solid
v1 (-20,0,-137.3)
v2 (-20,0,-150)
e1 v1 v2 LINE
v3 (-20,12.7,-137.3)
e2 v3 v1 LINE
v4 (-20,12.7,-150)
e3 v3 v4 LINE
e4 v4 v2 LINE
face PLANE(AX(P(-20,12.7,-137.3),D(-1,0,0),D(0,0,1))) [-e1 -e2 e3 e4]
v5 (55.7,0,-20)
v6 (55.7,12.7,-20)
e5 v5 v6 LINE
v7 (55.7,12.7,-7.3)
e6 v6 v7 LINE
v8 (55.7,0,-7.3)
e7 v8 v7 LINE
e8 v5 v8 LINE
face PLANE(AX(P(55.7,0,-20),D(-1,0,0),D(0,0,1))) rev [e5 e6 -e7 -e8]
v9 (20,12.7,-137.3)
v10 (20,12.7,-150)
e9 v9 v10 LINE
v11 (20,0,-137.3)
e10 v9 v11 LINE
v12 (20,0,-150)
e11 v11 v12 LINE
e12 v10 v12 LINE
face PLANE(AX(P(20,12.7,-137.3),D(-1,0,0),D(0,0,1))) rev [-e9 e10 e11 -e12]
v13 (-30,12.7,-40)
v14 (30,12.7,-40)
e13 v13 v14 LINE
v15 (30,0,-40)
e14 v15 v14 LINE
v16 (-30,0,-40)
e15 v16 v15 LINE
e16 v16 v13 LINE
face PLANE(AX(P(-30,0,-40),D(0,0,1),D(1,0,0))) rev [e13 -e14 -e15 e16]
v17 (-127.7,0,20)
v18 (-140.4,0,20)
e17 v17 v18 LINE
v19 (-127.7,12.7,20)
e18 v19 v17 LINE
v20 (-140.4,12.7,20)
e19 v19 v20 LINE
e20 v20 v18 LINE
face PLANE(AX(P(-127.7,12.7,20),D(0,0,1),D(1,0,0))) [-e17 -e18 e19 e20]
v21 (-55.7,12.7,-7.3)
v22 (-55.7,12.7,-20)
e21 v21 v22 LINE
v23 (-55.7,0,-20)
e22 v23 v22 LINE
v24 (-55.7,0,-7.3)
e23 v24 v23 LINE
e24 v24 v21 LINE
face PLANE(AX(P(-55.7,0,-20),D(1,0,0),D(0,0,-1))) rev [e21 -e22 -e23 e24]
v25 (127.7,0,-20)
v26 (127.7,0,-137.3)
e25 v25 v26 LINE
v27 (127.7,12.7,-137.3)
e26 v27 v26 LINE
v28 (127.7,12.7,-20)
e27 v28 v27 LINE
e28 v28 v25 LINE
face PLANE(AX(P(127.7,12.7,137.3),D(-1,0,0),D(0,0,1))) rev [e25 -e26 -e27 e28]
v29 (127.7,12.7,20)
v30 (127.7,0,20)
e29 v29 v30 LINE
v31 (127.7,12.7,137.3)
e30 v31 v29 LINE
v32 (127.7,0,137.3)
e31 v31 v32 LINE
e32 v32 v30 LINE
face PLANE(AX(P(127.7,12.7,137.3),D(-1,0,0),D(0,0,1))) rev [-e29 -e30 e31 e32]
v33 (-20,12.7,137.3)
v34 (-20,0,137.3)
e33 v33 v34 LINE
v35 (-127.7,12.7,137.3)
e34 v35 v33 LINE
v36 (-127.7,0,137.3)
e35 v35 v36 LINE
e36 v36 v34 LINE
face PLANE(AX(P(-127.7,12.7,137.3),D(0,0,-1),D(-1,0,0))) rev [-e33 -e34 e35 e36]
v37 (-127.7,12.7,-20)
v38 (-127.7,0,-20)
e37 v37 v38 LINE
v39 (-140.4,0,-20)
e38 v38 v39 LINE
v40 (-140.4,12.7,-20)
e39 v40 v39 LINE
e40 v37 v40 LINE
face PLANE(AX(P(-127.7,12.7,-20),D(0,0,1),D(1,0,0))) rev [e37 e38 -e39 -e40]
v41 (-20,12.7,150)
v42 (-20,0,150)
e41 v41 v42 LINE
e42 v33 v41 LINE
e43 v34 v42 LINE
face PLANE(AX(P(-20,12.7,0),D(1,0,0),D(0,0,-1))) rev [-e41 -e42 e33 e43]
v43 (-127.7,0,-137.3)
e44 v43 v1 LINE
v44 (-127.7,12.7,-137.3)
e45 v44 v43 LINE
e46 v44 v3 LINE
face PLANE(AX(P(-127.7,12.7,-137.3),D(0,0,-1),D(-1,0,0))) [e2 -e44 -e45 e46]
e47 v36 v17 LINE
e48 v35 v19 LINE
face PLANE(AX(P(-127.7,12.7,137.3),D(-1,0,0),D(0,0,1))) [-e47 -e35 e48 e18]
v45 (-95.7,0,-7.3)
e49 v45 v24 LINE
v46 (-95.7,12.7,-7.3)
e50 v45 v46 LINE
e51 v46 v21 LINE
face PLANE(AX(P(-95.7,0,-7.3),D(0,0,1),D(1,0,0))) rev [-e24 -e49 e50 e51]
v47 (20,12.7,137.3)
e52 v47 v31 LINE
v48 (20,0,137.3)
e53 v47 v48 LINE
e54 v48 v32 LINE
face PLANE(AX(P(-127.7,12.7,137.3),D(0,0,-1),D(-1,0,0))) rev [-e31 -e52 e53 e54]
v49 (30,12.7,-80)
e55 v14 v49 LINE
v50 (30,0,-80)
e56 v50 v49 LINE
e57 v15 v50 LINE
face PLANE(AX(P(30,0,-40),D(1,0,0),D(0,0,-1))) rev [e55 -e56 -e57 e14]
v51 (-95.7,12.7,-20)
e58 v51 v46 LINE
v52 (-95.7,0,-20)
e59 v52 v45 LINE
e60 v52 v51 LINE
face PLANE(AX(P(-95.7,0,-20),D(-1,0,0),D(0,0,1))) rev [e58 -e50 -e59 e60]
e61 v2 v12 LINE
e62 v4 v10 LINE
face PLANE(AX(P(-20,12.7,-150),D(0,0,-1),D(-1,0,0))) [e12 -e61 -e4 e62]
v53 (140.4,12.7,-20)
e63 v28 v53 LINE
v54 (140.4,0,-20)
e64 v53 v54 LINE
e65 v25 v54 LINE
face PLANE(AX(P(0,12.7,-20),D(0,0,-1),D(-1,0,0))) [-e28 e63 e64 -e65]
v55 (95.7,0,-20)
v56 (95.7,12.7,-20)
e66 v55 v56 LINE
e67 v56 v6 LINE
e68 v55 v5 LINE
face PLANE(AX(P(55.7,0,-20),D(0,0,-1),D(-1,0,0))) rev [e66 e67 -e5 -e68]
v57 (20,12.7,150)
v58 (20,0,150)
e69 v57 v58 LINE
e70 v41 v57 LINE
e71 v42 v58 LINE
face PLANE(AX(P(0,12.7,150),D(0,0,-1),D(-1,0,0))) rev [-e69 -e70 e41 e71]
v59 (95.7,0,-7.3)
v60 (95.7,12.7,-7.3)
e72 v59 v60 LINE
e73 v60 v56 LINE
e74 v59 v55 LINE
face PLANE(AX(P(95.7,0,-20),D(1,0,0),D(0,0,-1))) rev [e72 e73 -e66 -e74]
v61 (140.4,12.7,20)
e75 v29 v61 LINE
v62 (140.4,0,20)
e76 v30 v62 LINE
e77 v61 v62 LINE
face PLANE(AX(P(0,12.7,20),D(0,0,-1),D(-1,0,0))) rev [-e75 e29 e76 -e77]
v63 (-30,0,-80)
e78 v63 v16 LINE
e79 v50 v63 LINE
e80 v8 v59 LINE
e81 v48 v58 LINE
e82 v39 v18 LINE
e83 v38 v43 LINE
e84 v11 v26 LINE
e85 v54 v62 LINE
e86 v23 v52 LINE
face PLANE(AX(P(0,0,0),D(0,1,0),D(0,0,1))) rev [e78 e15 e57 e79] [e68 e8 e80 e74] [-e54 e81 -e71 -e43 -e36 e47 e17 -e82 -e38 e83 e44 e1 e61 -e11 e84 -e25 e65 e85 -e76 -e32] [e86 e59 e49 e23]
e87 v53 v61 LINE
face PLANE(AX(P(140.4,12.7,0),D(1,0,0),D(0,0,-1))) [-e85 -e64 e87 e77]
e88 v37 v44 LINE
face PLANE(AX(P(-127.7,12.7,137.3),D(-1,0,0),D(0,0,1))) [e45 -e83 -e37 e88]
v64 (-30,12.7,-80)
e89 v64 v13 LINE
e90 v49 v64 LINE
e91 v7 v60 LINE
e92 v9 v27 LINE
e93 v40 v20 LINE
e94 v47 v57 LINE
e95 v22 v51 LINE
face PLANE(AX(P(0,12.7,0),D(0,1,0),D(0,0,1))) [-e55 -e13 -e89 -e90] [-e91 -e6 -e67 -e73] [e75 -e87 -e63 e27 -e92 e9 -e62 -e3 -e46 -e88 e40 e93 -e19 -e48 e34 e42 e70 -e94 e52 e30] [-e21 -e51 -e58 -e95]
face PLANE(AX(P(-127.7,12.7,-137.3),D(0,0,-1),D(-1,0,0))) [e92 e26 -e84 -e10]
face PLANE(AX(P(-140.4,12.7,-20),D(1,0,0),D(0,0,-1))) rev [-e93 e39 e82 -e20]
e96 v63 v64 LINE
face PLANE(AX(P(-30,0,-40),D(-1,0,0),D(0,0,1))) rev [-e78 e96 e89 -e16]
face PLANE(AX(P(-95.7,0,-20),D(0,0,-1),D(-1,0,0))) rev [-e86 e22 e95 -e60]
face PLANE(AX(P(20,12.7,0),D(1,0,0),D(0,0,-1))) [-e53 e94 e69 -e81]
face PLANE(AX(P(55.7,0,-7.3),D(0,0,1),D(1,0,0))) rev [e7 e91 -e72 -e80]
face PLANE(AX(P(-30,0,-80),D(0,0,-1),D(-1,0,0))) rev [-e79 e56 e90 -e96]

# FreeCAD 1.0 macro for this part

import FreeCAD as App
import Part
import Sketcher
Q = App.Units.Quantity

doc = App.newDocument("Part")
body = doc.addObject("PartDesign::Body", "Body")

sketch1 = body.newObject("Sketcher::SketchObject", "Sketch")
sketch1.AttachmentSupport = (doc.getObject("XZ_Plane"), [""])
sketch1.MapMode = "FlatFace"
sketch1.addGeometry([
    Part.LineSegment(App.Vector(-128, 137, 0), App.Vector(-20, 137, 0)),
    Part.LineSegment(App.Vector(-20, 137, 0), App.Vector(-20, 150, 0)),
    Part.LineSegment(App.Vector(-20, 150, 0), App.Vector(20, 150, 0)),
    Part.LineSegment(App.Vector(20, 150, 0), App.Vector(20, 137, 0)),
    Part.LineSegment(App.Vector(20, 137, 0), App.Vector(128, 137, 0)),
    Part.LineSegment(App.Vector(128, 137, 0), App.Vector(128, 20, 0)),
    Part.LineSegment(App.Vector(128, 20, 0), App.Vector(140, 20, 0)),
    Part.LineSegment(App.Vector(140, 20, 0), App.Vector(140, -20, 0)),
    Part.LineSegment(App.Vector(140, -20, 0), App.Vector(128, -20, 0)),
    Part.LineSegment(App.Vector(128, -20, 0), App.Vector(128, -137, 0)),
    Part.LineSegment(App.Vector(128, -137, 0), App.Vector(20, -137, 0)),
    Part.LineSegment(App.Vector(20, -137, 0), App.Vector(20, -150, 0)),
    Part.LineSegment(App.Vector(20, -150, 0), App.Vector(-20, -150, 0)),
    Part.LineSegment(App.Vector(-20, -150, 0), App.Vector(-20, -137, 0)),
    Part.LineSegment(App.Vector(-20, -137, 0), App.Vector(-128, -137, 0)),
    Part.LineSegment(App.Vector(-128, -137, 0), App.Vector(-128, -20, 0)),
    Part.LineSegment(App.Vector(-128, -20, 0), App.Vector(-140, -20, 0)),
    Part.LineSegment(App.Vector(-140, -20, 0), App.Vector(-140, 20, 0)),
    Part.LineSegment(App.Vector(-140, 20, 0), App.Vector(-128, 20, 0)),
    Part.LineSegment(App.Vector(-128, 20, 0), App.Vector(-128, 137, 0)),
], False)
sketch1.addConstraint([
    Sketcher.Constraint("Coincident", 0, 2, 1, 1),
    Sketcher.Constraint("Coincident", 1, 2, 2, 1),
    Sketcher.Constraint("Coincident", 2, 2, 3, 1),
    Sketcher.Constraint("Coincident", 3, 2, 4, 1),
    Sketcher.Constraint("Coincident", 4, 2, 5, 1),
    Sketcher.Constraint("Coincident", 5, 2, 6, 1),
    Sketcher.Constraint("Coincident", 6, 2, 7, 1),
    Sketcher.Constraint("Coincident", 7, 2, 8, 1),
    Sketcher.Constraint("Coincident", 8, 2, 9, 1),
    Sketcher.Constraint("Coincident", 9, 2, 10, 1),
    Sketcher.Constraint("Coincident", 10, 2, 11, 1),
    Sketcher.Constraint("Coincident", 11, 2, 12, 1),
    Sketcher.Constraint("Coincident", 12, 2, 13, 1),
    Sketcher.Constraint("Coincident", 13, 2, 14, 1),
    Sketcher.Constraint("Coincident", 14, 2, 15, 1),
    Sketcher.Constraint("Coincident", 15, 2, 16, 1),
    Sketcher.Constraint("Coincident", 16, 2, 17, 1),
    Sketcher.Constraint("Coincident", 17, 2, 18, 1),
    Sketcher.Constraint("Coincident", 18, 2, 19, 1),
    Sketcher.Constraint("Coincident", 19, 2, 0, 1),
    Sketcher.Constraint("Horizontal", 0),
    Sketcher.Constraint("Vertical", 1),
    Sketcher.Constraint("Horizontal", 2),
    Sketcher.Constraint("Vertical", 3),
    Sketcher.Constraint("Horizontal", 4),
    Sketcher.Constraint("Vertical", 5),
    Sketcher.Constraint("Horizontal", 6),
    Sketcher.Constraint("Vertical", 7),
    Sketcher.Constraint("Horizontal", 8),
    Sketcher.Constraint("Vertical", 9),
    Sketcher.Constraint("Horizontal", 10),
    Sketcher.Constraint("Vertical", 11),
    Sketcher.Constraint("Horizontal", 12),
    Sketcher.Constraint("Vertical", 13),
    Sketcher.Constraint("Horizontal", 14),
    Sketcher.Constraint("Vertical", 15),
    Sketcher.Constraint("Horizontal", 16),
    Sketcher.Constraint("Vertical", 17),
    Sketcher.Constraint("Horizontal", 18),
    Sketcher.Constraint("Vertical", 19),
    Sketcher.Constraint("Symmetric", 0, 2, 10, 2, -1, 1),
    Sketcher.Constraint("Symmetric", 2, 2, 12, 2, -1, 1),
    Sketcher.Constraint("Symmetric", 4, 2, 14, 2, -1, 1),
    Sketcher.Constraint("Symmetric", 6, 2, 16, 2, -1, 1),
    Sketcher.Constraint("Symmetric", 8, 2, 18, 2, -1, 1),
    Sketcher.Constraint("Symmetric", 0, 2, 3, 2, -2),
    Sketcher.Constraint("Symmetric", 8, 2, 15, 2, -2),
    Sketcher.Constraint("Equal", 18, 1),
    Sketcher.Constraint("Equal", 12, 7),
    Sketcher.Constraint("DistanceX", 2, 1, 2, 2, Q("40 mm")),
    Sketcher.Constraint("DistanceX", 0, 1, 0, 2, Q("107.7 mm")),
    Sketcher.Constraint("DistanceX", 6, 1, 6, 2, Q("12.7 mm")),
    Sketcher.Constraint("DistanceY", 5, 2, 5, 1, Q("117.3 mm")),
])
pad1 = body.newObject("PartDesign::Pad", "Pad")
pad1.Profile = sketch1
pad1.Length = 12.7
pad1.Reversed = True

sketch2 = body.newObject("Sketcher::SketchObject", "Sketch001")
sketch2.AttachmentSupport = (doc.getObject("XZ_Plane"), [""])
sketch2.MapMode = "FlatFace"
sketch2.AttachmentOffset = App.Placement(App.Vector(0, 0, -12.7), App.Rotation())
sketch2.addGeometry([
    Part.LineSegment(App.Vector(-96, -20, 0), App.Vector(-96, -7, 0)),
    Part.LineSegment(App.Vector(-96, -7, 0), App.Vector(-56, -7, 0)),
    Part.LineSegment(App.Vector(-56, -7, 0), App.Vector(-56, -20, 0)),
    Part.LineSegment(App.Vector(-56, -20, 0), App.Vector(-96, -20, 0)),
    Part.LineSegment(App.Vector(56, -20, 0), App.Vector(56, -7, 0)),
    Part.LineSegment(App.Vector(56, -7, 0), App.Vector(96, -7, 0)),
    Part.LineSegment(App.Vector(96, -7, 0), App.Vector(96, -20, 0)),
    Part.LineSegment(App.Vector(96, -20, 0), App.Vector(56, -20, 0)),
    Part.LineSegment(App.Vector(-30, -80, 0), App.Vector(-30, -40, 0)),
    Part.LineSegment(App.Vector(-30, -40, 0), App.Vector(30, -40, 0)),
    Part.LineSegment(App.Vector(30, -40, 0), App.Vector(30, -80, 0)),
    Part.LineSegment(App.Vector(30, -80, 0), App.Vector(-30, -80, 0)),
], False)
sketch2.addConstraint([
    Sketcher.Constraint("Coincident", 0, 2, 1, 1),
    Sketcher.Constraint("Coincident", 1, 2, 2, 1),
    Sketcher.Constraint("Coincident", 2, 2, 3, 1),
    Sketcher.Constraint("Coincident", 3, 2, 0, 1),
    Sketcher.Constraint("Coincident", 4, 2, 5, 1),
    Sketcher.Constraint("Coincident", 5, 2, 6, 1),
    Sketcher.Constraint("Coincident", 6, 2, 7, 1),
    Sketcher.Constraint("Coincident", 7, 2, 4, 1),
    Sketcher.Constraint("Coincident", 8, 2, 9, 1),
    Sketcher.Constraint("Coincident", 9, 2, 10, 1),
    Sketcher.Constraint("Coincident", 10, 2, 11, 1),
    Sketcher.Constraint("Coincident", 11, 2, 8, 1),
    Sketcher.Constraint("Vertical", 0),
    Sketcher.Constraint("Horizontal", 1),
    Sketcher.Constraint("Vertical", 2),
    Sketcher.Constraint("Horizontal", 3),
    Sketcher.Constraint("Vertical", 4),
    Sketcher.Constraint("Horizontal", 5),
    Sketcher.Constraint("Vertical", 6),
    Sketcher.Constraint("Horizontal", 7),
    Sketcher.Constraint("Vertical", 8),
    Sketcher.Constraint("Horizontal", 9),
    Sketcher.Constraint("Vertical", 10),
    Sketcher.Constraint("Horizontal", 11),
    Sketcher.Constraint("Symmetric", 1, 2, 4, 2, -2),
    Sketcher.Constraint("Symmetric", 3, 2, 6, 2, -2),
    Sketcher.Constraint("Equal", 7, 8),
    Sketcher.Constraint("DistanceX", 1, 1, 1, 2, Q("40 mm")),
    Sketcher.Constraint("DistanceX", 9, 1, 9, 2, Q("60 mm")),
    Sketcher.Constraint("DistanceY", 0, 1, 0, 2, Q("12.7 mm")),
    Sketcher.Constraint("DistanceY", 2, 2, -1, 1, Q("20 mm")),
    Sketcher.Constraint("DistanceX", 8, 2, -1, 1, Q("30 mm")),
    Sketcher.Constraint("DistanceY", 8, 2, -1, 1, Q("40 mm")),
    Sketcher.Constraint("DistanceX", 0, 2, -1, 1, Q("95.7 mm")),
])
pocket1 = body.newObject("PartDesign::Pocket", "Pocket")
pocket1.Profile = sketch2
pocket1.Length = 12.7
pocket1.Reversed = True

doc.recompute()
